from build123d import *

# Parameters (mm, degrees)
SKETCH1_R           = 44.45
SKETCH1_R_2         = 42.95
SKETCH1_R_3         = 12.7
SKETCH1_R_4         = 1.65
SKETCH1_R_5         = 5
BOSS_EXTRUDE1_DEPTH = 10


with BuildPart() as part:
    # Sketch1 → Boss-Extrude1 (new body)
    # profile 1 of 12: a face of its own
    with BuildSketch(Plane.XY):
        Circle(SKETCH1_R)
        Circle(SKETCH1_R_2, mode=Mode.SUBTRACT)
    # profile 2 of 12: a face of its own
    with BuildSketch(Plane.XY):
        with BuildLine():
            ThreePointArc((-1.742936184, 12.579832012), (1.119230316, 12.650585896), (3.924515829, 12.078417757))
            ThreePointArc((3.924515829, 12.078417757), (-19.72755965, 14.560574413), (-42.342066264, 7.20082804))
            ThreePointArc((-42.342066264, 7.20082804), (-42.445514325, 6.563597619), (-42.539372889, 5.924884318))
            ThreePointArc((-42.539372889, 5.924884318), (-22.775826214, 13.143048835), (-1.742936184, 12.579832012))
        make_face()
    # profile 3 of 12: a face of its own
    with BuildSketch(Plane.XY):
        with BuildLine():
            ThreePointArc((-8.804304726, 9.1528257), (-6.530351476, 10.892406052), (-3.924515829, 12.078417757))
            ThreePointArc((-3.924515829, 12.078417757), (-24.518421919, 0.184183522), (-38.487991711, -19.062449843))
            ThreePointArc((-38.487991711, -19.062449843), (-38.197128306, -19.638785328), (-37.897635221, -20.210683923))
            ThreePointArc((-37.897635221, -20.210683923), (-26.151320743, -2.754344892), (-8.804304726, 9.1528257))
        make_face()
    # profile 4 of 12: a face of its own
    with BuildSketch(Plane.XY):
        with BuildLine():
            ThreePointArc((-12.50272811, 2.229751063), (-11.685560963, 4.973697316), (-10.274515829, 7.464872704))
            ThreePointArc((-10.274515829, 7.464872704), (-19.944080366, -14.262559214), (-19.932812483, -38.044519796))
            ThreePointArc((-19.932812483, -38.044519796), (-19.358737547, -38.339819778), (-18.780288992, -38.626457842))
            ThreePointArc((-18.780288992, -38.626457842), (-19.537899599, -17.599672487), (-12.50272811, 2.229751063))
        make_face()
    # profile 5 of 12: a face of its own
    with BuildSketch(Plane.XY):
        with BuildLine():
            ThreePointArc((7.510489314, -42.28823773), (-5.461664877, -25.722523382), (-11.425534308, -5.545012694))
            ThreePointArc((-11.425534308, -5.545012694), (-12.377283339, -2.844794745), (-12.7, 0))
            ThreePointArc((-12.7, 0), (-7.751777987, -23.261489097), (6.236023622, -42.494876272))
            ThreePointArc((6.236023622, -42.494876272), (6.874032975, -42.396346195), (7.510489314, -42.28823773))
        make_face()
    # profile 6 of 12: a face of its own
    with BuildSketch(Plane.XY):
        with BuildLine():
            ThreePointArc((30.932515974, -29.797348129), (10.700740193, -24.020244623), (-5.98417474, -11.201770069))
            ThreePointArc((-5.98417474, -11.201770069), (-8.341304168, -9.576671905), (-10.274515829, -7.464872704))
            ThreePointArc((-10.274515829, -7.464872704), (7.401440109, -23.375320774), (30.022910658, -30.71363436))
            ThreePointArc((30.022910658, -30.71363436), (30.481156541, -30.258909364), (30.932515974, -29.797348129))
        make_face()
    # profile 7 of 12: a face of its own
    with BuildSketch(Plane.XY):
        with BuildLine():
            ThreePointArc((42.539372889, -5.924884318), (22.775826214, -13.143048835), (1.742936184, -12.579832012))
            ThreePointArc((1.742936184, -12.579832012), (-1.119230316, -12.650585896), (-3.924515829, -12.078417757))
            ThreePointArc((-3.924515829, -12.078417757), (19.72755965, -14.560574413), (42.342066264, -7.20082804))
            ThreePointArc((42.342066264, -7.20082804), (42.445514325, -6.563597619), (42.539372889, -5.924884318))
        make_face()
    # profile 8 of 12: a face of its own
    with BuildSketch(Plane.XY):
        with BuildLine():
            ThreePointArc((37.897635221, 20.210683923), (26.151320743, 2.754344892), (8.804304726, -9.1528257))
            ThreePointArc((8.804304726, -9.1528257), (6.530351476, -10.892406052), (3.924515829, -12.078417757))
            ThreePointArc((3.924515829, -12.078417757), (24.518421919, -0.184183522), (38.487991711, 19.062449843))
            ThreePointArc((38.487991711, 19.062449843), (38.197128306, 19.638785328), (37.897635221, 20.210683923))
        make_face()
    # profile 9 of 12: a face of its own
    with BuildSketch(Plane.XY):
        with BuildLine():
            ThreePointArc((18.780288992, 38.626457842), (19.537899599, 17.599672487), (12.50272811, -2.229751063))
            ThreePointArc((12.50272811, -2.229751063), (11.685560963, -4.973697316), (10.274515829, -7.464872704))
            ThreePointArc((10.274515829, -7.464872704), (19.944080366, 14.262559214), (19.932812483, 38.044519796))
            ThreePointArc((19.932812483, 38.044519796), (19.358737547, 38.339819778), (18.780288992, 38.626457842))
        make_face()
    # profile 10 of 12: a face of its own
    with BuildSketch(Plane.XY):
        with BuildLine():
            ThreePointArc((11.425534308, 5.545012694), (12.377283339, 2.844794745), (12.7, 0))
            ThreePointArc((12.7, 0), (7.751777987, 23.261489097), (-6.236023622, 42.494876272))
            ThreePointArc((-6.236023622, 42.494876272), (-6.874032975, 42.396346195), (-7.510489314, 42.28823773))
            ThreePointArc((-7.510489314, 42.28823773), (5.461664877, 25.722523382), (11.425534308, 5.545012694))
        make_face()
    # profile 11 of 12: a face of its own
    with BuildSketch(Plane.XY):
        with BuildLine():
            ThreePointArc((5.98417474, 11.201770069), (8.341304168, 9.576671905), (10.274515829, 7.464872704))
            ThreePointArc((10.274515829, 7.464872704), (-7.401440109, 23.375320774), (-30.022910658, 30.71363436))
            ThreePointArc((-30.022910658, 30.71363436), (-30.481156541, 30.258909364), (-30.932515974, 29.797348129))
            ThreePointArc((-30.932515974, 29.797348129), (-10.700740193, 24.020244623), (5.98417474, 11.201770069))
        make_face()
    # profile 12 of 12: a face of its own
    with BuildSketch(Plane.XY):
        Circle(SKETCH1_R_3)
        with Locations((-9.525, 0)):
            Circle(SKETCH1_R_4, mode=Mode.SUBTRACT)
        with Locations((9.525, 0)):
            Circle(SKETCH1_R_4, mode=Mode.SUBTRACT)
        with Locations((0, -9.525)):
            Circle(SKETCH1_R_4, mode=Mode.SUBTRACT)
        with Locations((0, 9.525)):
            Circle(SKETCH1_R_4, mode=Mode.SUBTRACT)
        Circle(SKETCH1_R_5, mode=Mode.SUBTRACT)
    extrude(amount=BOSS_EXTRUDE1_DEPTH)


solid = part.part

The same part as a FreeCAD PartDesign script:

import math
import FreeCAD as App
import Part
import Sketcher
from FreeCAD import Vector
Q = App.Units.Quantity

doc = App.newDocument("Part")
params = doc.addObject("Spreadsheet::Sheet", "Params")
for row, (alias, value) in enumerate([
    ("sketch1_diameter", "10 mm"),
    ("sketch1_diameter2", "88.9 mm"),
    ("sketch1_diameter3", "3.3 mm"),
    ("sketch1_radius", "12.7 mm"),
    ("sketch1_radius2", "42.95 mm"),
    ("pad1_length", "10 mm"),
], start=1):
    params.set(f"A{row}", alias)
    params.set(f"B{row}", "=" + value)
    params.setAlias(f"B{row}", alias)

body = doc.addObject("PartDesign::Body", "Body")

sketch1 = doc.addObject("Sketcher::SketchObject", "Sketch")
body.addObject(sketch1)
sketch1.AttachmentSupport = (doc.XY_Plane, [""])
sketch1.MapMode = "FlatFace"
sketch1.addGeometry([
    Part.Circle(Vector(0, 0, 0), Vector(0, 0, 1), 44.45),
    Part.ArcOfCircle(Part.Circle(Vector(0, 0, 0), Vector(0, 0, 1), 42.95), math.radians(-7.929147), math.radians(26.348434)),
    Part.ArcOfCircle(Part.Circle(Vector(13.735805, 42.274462, 0), Vector(0, 0, 1), 56.15), math.radians(-102.3326), math.radians(-59.137778)),
    Part.ArcOfCircle(Part.Circle(Vector(0, 0, 0), Vector(0, 0, 1), 12.7), math.radians(-82.111886), math.radians(-72)),
    Part.ArcOfCircle(Part.Circle(Vector(-13.735805, 42.274462, 0), Vector(0, 0, 1), 57.15), math.radians(-72), math.radians(-23.963804)),
    Part.ArcOfCircle(Part.Circle(Vector(0, 0, 0), Vector(0, 0, 1), 42.95), math.radians(28.070853), math.radians(62.348434)),
    Part.ArcOfCircle(Part.Circle(Vector(-13.735805, 42.274462, 0), Vector(0, 0, 1), 56.15), math.radians(-66.3326), math.radians(-23.137778)),
    Part.ArcOfCircle(Part.Circle(Vector(0, 0, 0), Vector(0, 0, 1), 12.7), math.radians(-46.111886), math.radians(-36)),
    Part.ArcOfCircle(Part.Circle(Vector(-35.960805, 26.127054, 0), Vector(0, 0, 1), 57.15), math.radians(-36), math.radians(12.036196)),
    Part.ArcOfCircle(Part.Circle(Vector(0, 0, 0), Vector(0, 0, 1), 42.95), math.radians(64.070853), math.radians(98.348434)),
    Part.ArcOfCircle(Part.Circle(Vector(-35.960805, 26.127054, 0), Vector(0, 0, 1), 56.15), math.radians(-30.3326), math.radians(12.862222)),
    Part.ArcOfCircle(Part.Circle(Vector(0, 0, 0), Vector(0, 0, 1), 12.7), math.radians(-10.111886), math.radians(0)),
    Part.ArcOfCircle(Part.Circle(Vector(-44.45, 0, 0), Vector(0, 0, 1), 57.15), math.radians(0), math.radians(48.036196)),
    Part.ArcOfCircle(Part.Circle(Vector(0, 0, 0), Vector(0, 0, 1), 42.95), math.radians(100.070853), math.radians(134.348434)),
    Part.ArcOfCircle(Part.Circle(Vector(-44.45, 0, 0), Vector(0, 0, 1), 56.15), math.radians(5.6674), math.radians(48.862222)),
    Part.ArcOfCircle(Part.Circle(Vector(0, 0, 0), Vector(0, 0, 1), 12.7), math.radians(25.888114), math.radians(36)),
    Part.ArcOfCircle(Part.Circle(Vector(-35.960805, -26.127054, 0), Vector(0, 0, 1), 57.15), math.radians(36), math.radians(84.036196)),
    Part.ArcOfCircle(Part.Circle(Vector(0, 0, 0), Vector(0, 0, 1), 42.95), math.radians(136.070853), math.radians(170.348434)),
    Part.ArcOfCircle(Part.Circle(Vector(-35.960805, -26.127054, 0), Vector(0, 0, 1), 56.15), math.radians(41.6674), math.radians(84.862222)),
    Part.ArcOfCircle(Part.Circle(Vector(0, 0, 0), Vector(0, 0, 1), 12.7), math.radians(61.888114), math.radians(72)),
    Part.ArcOfCircle(Part.Circle(Vector(-13.735805, -42.274462, 0), Vector(0, 0, 1), 57.15), math.radians(72), math.radians(120.036196)),
    Part.ArcOfCircle(Part.Circle(Vector(0, 0, 0), Vector(0, 0, 1), 42.95), math.radians(172.070853), math.radians(206.348434)),
    Part.ArcOfCircle(Part.Circle(Vector(-13.735805, -42.274462, 0), Vector(0, 0, 1), 56.15), math.radians(77.6674), math.radians(120.862222)),
    Part.ArcOfCircle(Part.Circle(Vector(0, 0, 0), Vector(0, 0, 1), 12.7), math.radians(97.888114), math.radians(108)),
    Part.ArcOfCircle(Part.Circle(Vector(13.735805, -42.274462, 0), Vector(0, 0, 1), 57.15), math.radians(108), math.radians(156.036196)),
    Part.ArcOfCircle(Part.Circle(Vector(0, 0, 0), Vector(0, 0, 1), 42.95), math.radians(-151.929147), math.radians(-117.651566)),
    Part.ArcOfCircle(Part.Circle(Vector(13.735805, -42.274462, 0), Vector(0, 0, 1), 56.15), math.radians(113.6674), math.radians(156.862222)),
    Part.ArcOfCircle(Part.Circle(Vector(0, 0, 0), Vector(0, 0, 1), 12.7), math.radians(133.888114), math.radians(144)),
    Part.ArcOfCircle(Part.Circle(Vector(35.960805, -26.127054, 0), Vector(0, 0, 1), 57.15), math.radians(144), math.radians(192.036196)),
    Part.ArcOfCircle(Part.Circle(Vector(0, 0, 0), Vector(0, 0, 1), 42.95), math.radians(-115.929147), math.radians(-81.651566)),
    Part.ArcOfCircle(Part.Circle(Vector(35.960805, -26.127054, 0), Vector(0, 0, 1), 56.15), math.radians(149.6674), math.radians(192.862222)),
    Part.ArcOfCircle(Part.Circle(Vector(0, 0, 0), Vector(0, 0, 1), 12.7), math.radians(169.888114), math.radians(180)),
    Part.ArcOfCircle(Part.Circle(Vector(44.45, 0, 0), Vector(0, 0, 1), 57.15), math.radians(180), math.radians(228.036196)),
    Part.ArcOfCircle(Part.Circle(Vector(0, 0, 0), Vector(0, 0, 1), 42.95), math.radians(-79.929147), math.radians(-45.651566)),
    Part.ArcOfCircle(Part.Circle(Vector(44.45, 0, 0), Vector(0, 0, 1), 56.15), math.radians(-174.3326), math.radians(-131.137778)),
    Part.ArcOfCircle(Part.Circle(Vector(0, 0, 0), Vector(0, 0, 1), 12.7), math.radians(-154.111886), math.radians(-144)),
    Part.ArcOfCircle(Part.Circle(Vector(35.960805, 26.127054, 0), Vector(0, 0, 1), 57.15), math.radians(-144), math.radians(-95.963804)),
    Part.ArcOfCircle(Part.Circle(Vector(0, 0, 0), Vector(0, 0, 1), 42.95), math.radians(-43.929147), math.radians(-9.651566)),
    Part.ArcOfCircle(Part.Circle(Vector(35.960805, 26.127054, 0), Vector(0, 0, 1), 56.15), math.radians(-138.3326), math.radians(-95.137778)),
    Part.ArcOfCircle(Part.Circle(Vector(0, 0, 0), Vector(0, 0, 1), 12.7), math.radians(-118.111886), math.radians(-108)),
    Part.ArcOfCircle(Part.Circle(Vector(13.735805, 42.274462, 0), Vector(0, 0, 1), 57.15), math.radians(-108), math.radians(-59.963804)),
    Part.Circle(Vector(0, 0, 0), Vector(0, 0, 1), 5),
    Part.Circle(Vector(-9.525, 0, 0), Vector(0, 0, 1), 1.65),
    Part.Circle(Vector(0, -9.525, 0), Vector(0, 0, 1), 1.65),
    Part.Circle(Vector(9.525, 0, 0), Vector(0, 0, 1), 1.65),
    Part.Circle(Vector(0, 9.525, 0), Vector(0, 0, 1), 1.65),
], False)
sketch1.addConstraint([
    Sketcher.Constraint("Coincident", 1, 1, 2, 2),
    Sketcher.Constraint("Coincident", 2, 1, 3, 1),
    Sketcher.Constraint("Tangent", 3, 2, 4, 1),
    Sketcher.Constraint("Coincident", 4, 2, 1, 2),
    Sketcher.Constraint("Coincident", 5, 1, 6, 2),
    Sketcher.Constraint("Coincident", 6, 1, 7, 1),
    Sketcher.Constraint("Tangent", 7, 2, 8, 1),
    Sketcher.Constraint("Coincident", 8, 2, 5, 2),
    Sketcher.Constraint("Coincident", 9, 1, 10, 2),
    Sketcher.Constraint("Coincident", 10, 1, 11, 1),
    Sketcher.Constraint("Tangent", 11, 2, 12, 1),
    Sketcher.Constraint("Coincident", 12, 2, 9, 2),
    Sketcher.Constraint("Coincident", 13, 1, 14, 2),
    Sketcher.Constraint("Coincident", 14, 1, 15, 1),
    Sketcher.Constraint("Tangent", 15, 2, 16, 1),
    Sketcher.Constraint("Coincident", 16, 2, 13, 2),
    Sketcher.Constraint("Coincident", 17, 1, 18, 2),
    Sketcher.Constraint("Coincident", 18, 1, 19, 1),
    Sketcher.Constraint("Tangent", 19, 2, 20, 1),
    Sketcher.Constraint("Coincident", 20, 2, 17, 2),
    Sketcher.Constraint("Coincident", 21, 1, 22, 2),
    Sketcher.Constraint("Coincident", 22, 1, 23, 1),
    Sketcher.Constraint("Tangent", 23, 2, 24, 1),
    Sketcher.Constraint("Coincident", 24, 2, 21, 2),
    Sketcher.Constraint("Coincident", 25, 1, 26, 2),
    Sketcher.Constraint("Coincident", 26, 1, 27, 1),
    Sketcher.Constraint("Tangent", 27, 2, 28, 1),
    Sketcher.Constraint("Coincident", 28, 2, 25, 2),
    Sketcher.Constraint("Coincident", 29, 1, 30, 2),
    Sketcher.Constraint("Coincident", 30, 1, 31, 1),
    Sketcher.Constraint("Tangent", 31, 2, 32, 1),
    Sketcher.Constraint("Coincident", 32, 2, 29, 2),
    Sketcher.Constraint("Coincident", 33, 1, 34, 2),
    Sketcher.Constraint("Coincident", 34, 1, 35, 1),
    Sketcher.Constraint("Tangent", 35, 2, 36, 1),
    Sketcher.Constraint("Coincident", 36, 2, 33, 2),
    Sketcher.Constraint("Coincident", 37, 1, 38, 2),
    Sketcher.Constraint("Coincident", 38, 1, 39, 1),
    Sketcher.Constraint("Tangent", 39, 2, 40, 1),
    Sketcher.Constraint("Coincident", 40, 2, 37, 2),
    Sketcher.Constraint("Coincident", 0, 3, -1, 1),
    Sketcher.Constraint("Coincident", 1, 3, -1, 1),
    Sketcher.Constraint("Coincident", 3, 3, -1, 1),
    Sketcher.Constraint("Coincident", 5, 3, -1, 1),
    Sketcher.Constraint("Coincident", 7, 3, -1, 1),
    Sketcher.Constraint("Coincident", 9, 3, -1, 1),
    Sketcher.Constraint("Coincident", 11, 3, -1, 1),
    Sketcher.Constraint("Coincident", 13, 3, -1, 1),
    Sketcher.Constraint("Coincident", 15, 3, -1, 1),
    Sketcher.Constraint("Coincident", 17, 3, -1, 1),
    Sketcher.Constraint("Coincident", 19, 3, -1, 1),
    Sketcher.Constraint("Coincident", 21, 3, -1, 1),
    Sketcher.Constraint("Coincident", 23, 3, -1, 1),
    Sketcher.Constraint("Coincident", 25, 3, -1, 1),
    Sketcher.Constraint("Coincident", 27, 3, -1, 1),
    Sketcher.Constraint("Coincident", 29, 3, -1, 1),
    Sketcher.Constraint("Coincident", 31, 3, -1, 1),
    Sketcher.Constraint("Coincident", 33, 3, -1, 1),
    Sketcher.Constraint("Coincident", 35, 3, -1, 1),
    Sketcher.Constraint("Coincident", 37, 3, -1, 1),
    Sketcher.Constraint("Coincident", 39, 3, -1, 1),
    Sketcher.Constraint("Coincident", 41, 3, -1, 1),
    Sketcher.Constraint("Coincident", 6, 3, 4, 3),
    Sketcher.Constraint("Coincident", 10, 3, 8, 3),
    Sketcher.Constraint("Coincident", 14, 3, 12, 3),
    Sketcher.Constraint("Coincident", 18, 3, 16, 3),
    Sketcher.Constraint("Coincident", 22, 3, 20, 3),
    Sketcher.Constraint("Coincident", 26, 3, 24, 3),
    Sketcher.Constraint("Coincident", 30, 3, 28, 3),
    Sketcher.Constraint("Coincident", 34, 3, 32, 3),
    Sketcher.Constraint("Coincident", 38, 3, 36, 3),
    Sketcher.Constraint("Coincident", 40, 3, 2, 3),
    Sketcher.Constraint("Equal", 1, 5),
    Sketcher.Constraint("Equal", 2, 6),
    Sketcher.Constraint("Equal", 3, 7),
    Sketcher.Constraint("Equal", 4, 8),
    Sketcher.Constraint("Equal", 5, 9),
    Sketcher.Constraint("Equal", 6, 10),
    Sketcher.Constraint("Equal", 7, 11),
    Sketcher.Constraint("Equal", 8, 12),
    Sketcher.Constraint("Equal", 9, 13),
    Sketcher.Constraint("Equal", 10, 14),
    Sketcher.Constraint("Equal", 11, 15),
    Sketcher.Constraint("Equal", 12, 16),
    Sketcher.Constraint("Equal", 13, 17),
    Sketcher.Constraint("Equal", 14, 18),
    Sketcher.Constraint("Equal", 15, 19),
    Sketcher.Constraint("Equal", 16, 20),
    Sketcher.Constraint("Equal", 17, 21),
    Sketcher.Constraint("Equal", 18, 22),
    Sketcher.Constraint("Equal", 19, 23),
    Sketcher.Constraint("Equal", 20, 24),
    Sketcher.Constraint("Equal", 21, 25),
    Sketcher.Constraint("Equal", 22, 26),
    Sketcher.Constraint("Equal", 23, 27),
    Sketcher.Constraint("Equal", 24, 28),
    Sketcher.Constraint("Equal", 25, 29),
    Sketcher.Constraint("Equal", 26, 30),
    Sketcher.Constraint("Equal", 27, 31),
    Sketcher.Constraint("Equal", 28, 32),
    Sketcher.Constraint("Equal", 29, 33),
    Sketcher.Constraint("Equal", 30, 34),
    Sketcher.Constraint("Equal", 31, 35),
    Sketcher.Constraint("Equal", 32, 36),
    Sketcher.Constraint("Equal", 33, 37),
    Sketcher.Constraint("Equal", 34, 38),
    Sketcher.Constraint("Equal", 35, 39),
    Sketcher.Constraint("Equal", 36, 40),
    Sketcher.Constraint("Equal", 42, 43),
    Sketcher.Constraint("Equal", 43, 44),
    Sketcher.Constraint("Equal", 44, 45),
    Sketcher.Constraint("Symmetric", 42, 3, 44, 3, -1, 1),
    Sketcher.Constraint("Symmetric", 43, 3, 45, 3, -1, 1),
    Sketcher.Constraint("PointOnObject", 12, 3, -1),
    Sketcher.Constraint("PointOnObject", 32, 3, -1),
    Sketcher.Constraint("PointOnObject", 42, 3, -1),
    Sketcher.Constraint("PointOnObject", 43, 3, -2),
    Sketcher.Constraint("Horizontal", 2, 3, 4, 3),
    Sketcher.Constraint("Horizontal", 22, 3, 24, 3),
    Sketcher.Constraint("Horizontal", 18, 3, 28, 3),
    Sketcher.Constraint("Horizontal", 10, 3, 36, 3),
    Sketcher.Constraint("Vertical", 10, 3, 16, 3),
    Sketcher.Constraint("Vertical", 6, 3, 20, 3),
    Sketcher.Constraint("Diameter", 41, Q("10 mm")),
    Sketcher.Constraint("Diameter", 0, Q("88.9 mm")),
    Sketcher.Constraint("Diameter", 42, Q("3.3 mm")),
    Sketcher.Constraint("Radius", 3, Q("12.7 mm")),
    Sketcher.Constraint("Radius", 1, Q("42.95 mm")),
    Sketcher.Constraint("Radius", 2, Q("56.15 mm")),
    Sketcher.Constraint("Radius", 4, Q("57.15 mm")),
    Sketcher.Constraint("DistanceX", 42, 3, -1, 1, Q("9.525 mm")),
    Sketcher.Constraint("DistanceY", 43, 3, -1, 1, Q("9.525 mm")),
    Sketcher.Constraint("DistanceX", -1, 1, 4, 2, Q("38.487992 mm")),
    Sketcher.Constraint("DistanceY", -1, 1, 8, 2, Q("38.04452 mm")),
])
sketch1.setExpression("Constraints[123]", "Params.sketch1_diameter")
sketch1.setExpression("Constraints[124]", "Params.sketch1_diameter2")
sketch1.setExpression("Constraints[125]", "Params.sketch1_diameter3")
sketch1.setExpression("Constraints[126]", "Params.sketch1_radius")
sketch1.setExpression("Constraints[127]", "Params.sketch1_radius2")
pad1 = doc.addObject("PartDesign::Pad", "Pad")
body.addObject(pad1)
pad1.Profile = sketch1
pad1.setExpression("Length", "Params.pad1_length")

doc.recompute()
